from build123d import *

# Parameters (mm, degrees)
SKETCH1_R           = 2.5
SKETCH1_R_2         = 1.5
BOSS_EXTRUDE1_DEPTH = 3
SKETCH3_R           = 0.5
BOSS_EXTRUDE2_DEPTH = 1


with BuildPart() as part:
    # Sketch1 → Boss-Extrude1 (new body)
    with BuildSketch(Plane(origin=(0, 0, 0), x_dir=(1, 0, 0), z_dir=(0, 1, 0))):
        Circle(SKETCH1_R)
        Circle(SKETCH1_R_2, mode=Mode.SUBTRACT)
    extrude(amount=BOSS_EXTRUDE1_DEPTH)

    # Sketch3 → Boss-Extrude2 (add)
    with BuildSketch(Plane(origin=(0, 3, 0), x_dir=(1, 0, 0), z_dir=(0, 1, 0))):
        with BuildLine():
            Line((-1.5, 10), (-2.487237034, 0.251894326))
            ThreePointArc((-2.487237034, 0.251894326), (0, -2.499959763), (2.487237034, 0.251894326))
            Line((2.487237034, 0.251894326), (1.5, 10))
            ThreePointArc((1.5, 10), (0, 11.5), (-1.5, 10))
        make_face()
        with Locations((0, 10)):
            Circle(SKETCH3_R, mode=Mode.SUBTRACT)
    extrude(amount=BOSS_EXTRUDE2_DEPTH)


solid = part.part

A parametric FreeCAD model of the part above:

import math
import FreeCAD as App
import Part
import Sketcher

V = App.Vector

doc = App.newDocument("Part")
params = doc.addObject("Spreadsheet::Sheet", "Params")
for row, (alias, value) in enumerate([
    ("sketch1_diameter", "5 mm"),
    ("sketch1_diameter2", "3 mm"),
    ("pad1_length", "3 mm"),
    ("sketch2_diameter", "1 mm"),
    ("sketch2_radius", "1.5 mm"),
    ("pad2_length", "1 mm"),
], start=1):
    params.set(f"A{row}", alias)
    params.set(f"B{row}", "=" + value)
    params.setAlias(f"B{row}", alias)

body = doc.addObject("PartDesign::Body", "Body")

sketch1 = body.newObject("Sketcher::SketchObject", "Sketch")
sketch1.AttachmentSupport = (doc.getObject("XZ_Plane"), [""])
sketch1.MapMode = "FlatFace"
sketch1.addGeometry(Part.Circle(V(0, 0, 0), V(0, 0, 1), 2.5), False)
sketch1.addGeometry(Part.Circle(V(0, 0, 0), V(0, 0, 1), 1.5), False)
sketch1.addConstraint(Sketcher.Constraint("Coincident", 0, 3, -1, 1))
sketch1.addConstraint(Sketcher.Constraint("Coincident", 1, 3, -1, 1))
sketch1.addConstraint(Sketcher.Constraint("Diameter", 0, 5.0))
sketch1.addConstraint(Sketcher.Constraint("Diameter", 1, 3.0))
sketch1.setExpression("Constraints[2]", "Params.sketch1_diameter")
sketch1.setExpression("Constraints[3]", "Params.sketch1_diameter2")
pad1 = body.newObject("PartDesign::Pad", "Pad")
pad1.Profile = sketch1
pad1.setExpression("Length", "Params.pad1_length")
pad1.Reversed = True

sketch2 = body.newObject("Sketcher::SketchObject", "Sketch001")
sketch2.AttachmentSupport = (doc.getObject("XZ_Plane"), [""])
sketch2.MapMode = "FlatFace"
sketch2.AttachmentOffset = App.Placement(V(0, 0, -3), App.Rotation())
sketch2.addGeometry(Part.LineSegment(V(-1.5, -10, 0), V(-2.5, -0.3, 0)), False)
sketch2.addGeometry(Part.ArcOfCircle(Part.Circle(V(0, 0, 0), V(0, 0, 1), 2.5), math.radians(-6), math.radians(186)), False)
sketch2.addGeometry(Part.LineSegment(V(2.5, -0.3, 0), V(1.5, -10, 0)), False)
sketch2.addGeometry(Part.ArcOfCircle(Part.Circle(V(0, -10, 0), V(0, 0, 1), 1.5), math.radians(180), math.radians(360)), False)
sketch2.addGeometry(Part.Circle(V(0, -10, 0), V(0, 0, 1), 0.5), False)
sketch2.addConstraint(Sketcher.Constraint("Tangent", 0, 2, 1, 2))
sketch2.addConstraint(Sketcher.Constraint("Tangent", 1, 1, 2, 1))
sketch2.addConstraint(Sketcher.Constraint("Coincident", 2, 2, 3, 2))
sketch2.addConstraint(Sketcher.Constraint("Coincident", 3, 1, 0, 1))
sketch2.addConstraint(Sketcher.Constraint("Coincident", 1, 3, -1, 1))
sketch2.addConstraint(Sketcher.Constraint("Coincident", 4, 3, 3, 3))
sketch2.addConstraint(Sketcher.Constraint("Symmetric", 2, 2, 3, 1, -2))
sketch2.addConstraint(Sketcher.Constraint("Horizontal", 4, 3, 2, 2))
sketch2.addConstraint(Sketcher.Constraint("Diameter", 4, 1.0))
sketch2.addConstraint(Sketcher.Constraint("Radius", 3, 1.5))
sketch2.addConstraint(Sketcher.Constraint("DistanceY", 3, 3, -1, 1, 10.0))
sketch2.addConstraint(Sketcher.Constraint("Radius", 1, 2.49996))
sketch2.setExpression("Constraints[8]", "Params.sketch2_diameter")
sketch2.setExpression("Constraints[9]", "Params.sketch2_radius")
pad2 = body.newObject("PartDesign::Pad", "Pad001")
pad2.Profile = sketch2
pad2.setExpression("Length", "Params.pad2_length")
pad2.Reversed = True

doc.recompute()
